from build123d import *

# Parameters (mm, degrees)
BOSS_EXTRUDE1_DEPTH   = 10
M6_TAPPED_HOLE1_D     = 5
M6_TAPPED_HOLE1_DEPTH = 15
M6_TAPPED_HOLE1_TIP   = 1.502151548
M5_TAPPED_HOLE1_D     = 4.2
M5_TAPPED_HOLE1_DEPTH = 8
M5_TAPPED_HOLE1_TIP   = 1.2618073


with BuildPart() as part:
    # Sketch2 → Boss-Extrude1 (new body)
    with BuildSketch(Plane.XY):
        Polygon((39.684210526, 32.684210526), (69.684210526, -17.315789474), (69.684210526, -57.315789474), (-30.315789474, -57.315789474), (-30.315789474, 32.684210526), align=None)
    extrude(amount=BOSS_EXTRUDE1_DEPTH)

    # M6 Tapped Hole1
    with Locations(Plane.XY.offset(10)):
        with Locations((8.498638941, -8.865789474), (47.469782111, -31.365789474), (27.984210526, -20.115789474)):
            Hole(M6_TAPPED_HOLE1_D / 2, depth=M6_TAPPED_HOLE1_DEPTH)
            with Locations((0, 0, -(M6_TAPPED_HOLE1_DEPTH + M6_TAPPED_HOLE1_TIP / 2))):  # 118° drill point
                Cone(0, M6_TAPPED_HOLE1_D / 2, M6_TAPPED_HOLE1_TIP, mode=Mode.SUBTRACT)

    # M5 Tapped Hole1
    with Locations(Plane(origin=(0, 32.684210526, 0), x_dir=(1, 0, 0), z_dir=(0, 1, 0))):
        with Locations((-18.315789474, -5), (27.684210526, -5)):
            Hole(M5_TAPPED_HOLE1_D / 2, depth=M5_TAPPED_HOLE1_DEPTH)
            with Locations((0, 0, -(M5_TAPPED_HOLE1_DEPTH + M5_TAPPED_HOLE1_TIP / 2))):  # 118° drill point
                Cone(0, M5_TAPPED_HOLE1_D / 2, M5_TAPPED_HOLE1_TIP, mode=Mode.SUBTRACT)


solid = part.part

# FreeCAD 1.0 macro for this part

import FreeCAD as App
import Part
import Sketcher

V = App.Vector


def add_polygon(sketch, points):
    """Adds a closed chain of lines whose ends are joined by coincident constraints."""
    first, n = sketch.GeometryCount, len(points)
    for a, b in zip(points, points[1:] + points[:1]):
        sketch.addGeometry(Part.LineSegment(App.Vector(*a, 0), App.Vector(*b, 0)), False)
    for i in range(n):
        sketch.addConstraint(Sketcher.Constraint("Coincident", first + i, 2, first + (i + 1) % n, 1))

doc = App.newDocument("Part")
body = doc.addObject("PartDesign::Body", "Body")

# Sketch on XY plane
sketch1 = body.newObject("Sketcher::SketchObject", "Sketch")
sketch1.AttachmentSupport = (doc.getObject("XY_Plane"), [""])
sketch1.MapMode = "FlatFace"
add_polygon(sketch1, [(69.684211, -17.315789), (39.684211, 32.684211), (-30.315789, 32.684211), (-30.315789, -57.315789), (69.684211, -57.315789)])  # lines 0-4
sketch1.addConstraint(Sketcher.Constraint("Horizontal", 1))
sketch1.addConstraint(Sketcher.Constraint("Vertical", 2))
sketch1.addConstraint(Sketcher.Constraint("Horizontal", 3))
sketch1.addConstraint(Sketcher.Constraint("Vertical", 4))
sketch1.addConstraint(Sketcher.Constraint("DistanceX", 1, 2, 1, 1, 70.0))
sketch1.addConstraint(Sketcher.Constraint("DistanceX", 3, 1, 3, 2, 100.0))
sketch1.addConstraint(Sketcher.Constraint("DistanceY", 2, 2, 2, 1, 90.0))
sketch1.addConstraint(Sketcher.Constraint("DistanceY", 4, 1, 4, 2, 40.0))
sketch1.addConstraint(Sketcher.Constraint("DistanceX", -1, 1, 0, 2, 39.684211))
sketch1.addConstraint(Sketcher.Constraint("DistanceY", -1, 1, 0, 2, 32.684211))
pad1 = body.newObject("PartDesign::Pad", "Pad")
pad1.Profile = sketch1
pad1.Length = 10

# Sketch on XY plane
sketch2 = body.newObject("Sketcher::SketchObject", "Sketch001")
sketch2.AttachmentSupport = (doc.getObject("XY_Plane"), [""])
sketch2.MapMode = "FlatFace"
sketch2.AttachmentOffset = App.Placement(V(0, 0, 10), App.Rotation())
sketch2.addGeometry(Part.Circle(V(8.498639, -8.865789, 0), V(0, 0, 1), 2.5), False)
sketch2.addGeometry(Part.Circle(V(47.469782, -31.365789, 0), V(0, 0, 1), 2.5), False)
sketch2.addGeometry(Part.Circle(V(27.984211, -20.115789, 0), V(0, 0, 1), 2.5), False)
sketch2.addConstraint(Sketcher.Constraint("Equal", 0, 1))
sketch2.addConstraint(Sketcher.Constraint("Equal", 1, 2))
sketch2.addConstraint(Sketcher.Constraint("Diameter", 0, 5.0))
sketch2.addConstraint(Sketcher.Constraint("DistanceY", 1, 3, 0, 3, 22.5))
sketch2.addConstraint(Sketcher.Constraint("DistanceY", 2, 3, 0, 3, 11.25))
sketch2.addConstraint(Sketcher.Constraint("DistanceX", -1, 1, 0, 3, 8.498639))
sketch2.addConstraint(Sketcher.Constraint("DistanceY", 0, 3, -1, 1, 8.865789))
sketch2.addConstraint(Sketcher.Constraint("DistanceX", -1, 1, 2, 3, 27.984211))
sketch2.addConstraint(Sketcher.Constraint("DistanceX", 2, 3, 1, 3, 19.485572))
doc.recompute()
hole = body.newObject("PartDesign::Hole", "Hole")
hole.Profile = sketch2
hole.ThreadType = "None"
hole.Diameter = 5
hole.DepthType = "Dimension"
hole.Depth = 15
hole.DrillPoint = "Angled"
hole.DrillPointAngle = 118

# Sketch on XZ plane
sketch3 = body.newObject("Sketcher::SketchObject", "Sketch002")
sketch3.AttachmentSupport = (doc.getObject("XZ_Plane"), [""])
sketch3.MapMode = "FlatFace"
sketch3.AttachmentOffset = App.Placement(V(0, 0, -32.684211), App.Rotation())
sketch3.addGeometry(Part.Circle(V(-18.315789, 5, 0), V(0, 0, 1), 2.1), False)
sketch3.addGeometry(Part.Circle(V(27.684211, 5, 0), V(0, 0, 1), 2.1), False)
sketch3.addConstraint(Sketcher.Constraint("Equal", 0, 1))
sketch3.addConstraint(Sketcher.Constraint("Horizontal", 0, 3, 1, 3))
sketch3.addConstraint(Sketcher.Constraint("Diameter", 0, 4.2))
sketch3.addConstraint(Sketcher.Constraint("DistanceY", -1, 1, 0, 3, 5.0))
sketch3.addConstraint(Sketcher.Constraint("DistanceX", 0, 3, 1, 3, 46.0))
sketch3.addConstraint(Sketcher.Constraint("DistanceX", 0, 3, -1, 1, 18.315789))
doc.recompute()
hole2 = body.newObject("PartDesign::Hole", "Hole001")
hole2.Profile = sketch3
hole2.ThreadType = "None"
hole2.Diameter = 4.2
hole2.DepthType = "Dimension"
hole2.Depth = 8
hole2.DrillPoint = "Angled"
hole2.DrillPointAngle = 118
hole2.Reversed = True

doc.recompute()
